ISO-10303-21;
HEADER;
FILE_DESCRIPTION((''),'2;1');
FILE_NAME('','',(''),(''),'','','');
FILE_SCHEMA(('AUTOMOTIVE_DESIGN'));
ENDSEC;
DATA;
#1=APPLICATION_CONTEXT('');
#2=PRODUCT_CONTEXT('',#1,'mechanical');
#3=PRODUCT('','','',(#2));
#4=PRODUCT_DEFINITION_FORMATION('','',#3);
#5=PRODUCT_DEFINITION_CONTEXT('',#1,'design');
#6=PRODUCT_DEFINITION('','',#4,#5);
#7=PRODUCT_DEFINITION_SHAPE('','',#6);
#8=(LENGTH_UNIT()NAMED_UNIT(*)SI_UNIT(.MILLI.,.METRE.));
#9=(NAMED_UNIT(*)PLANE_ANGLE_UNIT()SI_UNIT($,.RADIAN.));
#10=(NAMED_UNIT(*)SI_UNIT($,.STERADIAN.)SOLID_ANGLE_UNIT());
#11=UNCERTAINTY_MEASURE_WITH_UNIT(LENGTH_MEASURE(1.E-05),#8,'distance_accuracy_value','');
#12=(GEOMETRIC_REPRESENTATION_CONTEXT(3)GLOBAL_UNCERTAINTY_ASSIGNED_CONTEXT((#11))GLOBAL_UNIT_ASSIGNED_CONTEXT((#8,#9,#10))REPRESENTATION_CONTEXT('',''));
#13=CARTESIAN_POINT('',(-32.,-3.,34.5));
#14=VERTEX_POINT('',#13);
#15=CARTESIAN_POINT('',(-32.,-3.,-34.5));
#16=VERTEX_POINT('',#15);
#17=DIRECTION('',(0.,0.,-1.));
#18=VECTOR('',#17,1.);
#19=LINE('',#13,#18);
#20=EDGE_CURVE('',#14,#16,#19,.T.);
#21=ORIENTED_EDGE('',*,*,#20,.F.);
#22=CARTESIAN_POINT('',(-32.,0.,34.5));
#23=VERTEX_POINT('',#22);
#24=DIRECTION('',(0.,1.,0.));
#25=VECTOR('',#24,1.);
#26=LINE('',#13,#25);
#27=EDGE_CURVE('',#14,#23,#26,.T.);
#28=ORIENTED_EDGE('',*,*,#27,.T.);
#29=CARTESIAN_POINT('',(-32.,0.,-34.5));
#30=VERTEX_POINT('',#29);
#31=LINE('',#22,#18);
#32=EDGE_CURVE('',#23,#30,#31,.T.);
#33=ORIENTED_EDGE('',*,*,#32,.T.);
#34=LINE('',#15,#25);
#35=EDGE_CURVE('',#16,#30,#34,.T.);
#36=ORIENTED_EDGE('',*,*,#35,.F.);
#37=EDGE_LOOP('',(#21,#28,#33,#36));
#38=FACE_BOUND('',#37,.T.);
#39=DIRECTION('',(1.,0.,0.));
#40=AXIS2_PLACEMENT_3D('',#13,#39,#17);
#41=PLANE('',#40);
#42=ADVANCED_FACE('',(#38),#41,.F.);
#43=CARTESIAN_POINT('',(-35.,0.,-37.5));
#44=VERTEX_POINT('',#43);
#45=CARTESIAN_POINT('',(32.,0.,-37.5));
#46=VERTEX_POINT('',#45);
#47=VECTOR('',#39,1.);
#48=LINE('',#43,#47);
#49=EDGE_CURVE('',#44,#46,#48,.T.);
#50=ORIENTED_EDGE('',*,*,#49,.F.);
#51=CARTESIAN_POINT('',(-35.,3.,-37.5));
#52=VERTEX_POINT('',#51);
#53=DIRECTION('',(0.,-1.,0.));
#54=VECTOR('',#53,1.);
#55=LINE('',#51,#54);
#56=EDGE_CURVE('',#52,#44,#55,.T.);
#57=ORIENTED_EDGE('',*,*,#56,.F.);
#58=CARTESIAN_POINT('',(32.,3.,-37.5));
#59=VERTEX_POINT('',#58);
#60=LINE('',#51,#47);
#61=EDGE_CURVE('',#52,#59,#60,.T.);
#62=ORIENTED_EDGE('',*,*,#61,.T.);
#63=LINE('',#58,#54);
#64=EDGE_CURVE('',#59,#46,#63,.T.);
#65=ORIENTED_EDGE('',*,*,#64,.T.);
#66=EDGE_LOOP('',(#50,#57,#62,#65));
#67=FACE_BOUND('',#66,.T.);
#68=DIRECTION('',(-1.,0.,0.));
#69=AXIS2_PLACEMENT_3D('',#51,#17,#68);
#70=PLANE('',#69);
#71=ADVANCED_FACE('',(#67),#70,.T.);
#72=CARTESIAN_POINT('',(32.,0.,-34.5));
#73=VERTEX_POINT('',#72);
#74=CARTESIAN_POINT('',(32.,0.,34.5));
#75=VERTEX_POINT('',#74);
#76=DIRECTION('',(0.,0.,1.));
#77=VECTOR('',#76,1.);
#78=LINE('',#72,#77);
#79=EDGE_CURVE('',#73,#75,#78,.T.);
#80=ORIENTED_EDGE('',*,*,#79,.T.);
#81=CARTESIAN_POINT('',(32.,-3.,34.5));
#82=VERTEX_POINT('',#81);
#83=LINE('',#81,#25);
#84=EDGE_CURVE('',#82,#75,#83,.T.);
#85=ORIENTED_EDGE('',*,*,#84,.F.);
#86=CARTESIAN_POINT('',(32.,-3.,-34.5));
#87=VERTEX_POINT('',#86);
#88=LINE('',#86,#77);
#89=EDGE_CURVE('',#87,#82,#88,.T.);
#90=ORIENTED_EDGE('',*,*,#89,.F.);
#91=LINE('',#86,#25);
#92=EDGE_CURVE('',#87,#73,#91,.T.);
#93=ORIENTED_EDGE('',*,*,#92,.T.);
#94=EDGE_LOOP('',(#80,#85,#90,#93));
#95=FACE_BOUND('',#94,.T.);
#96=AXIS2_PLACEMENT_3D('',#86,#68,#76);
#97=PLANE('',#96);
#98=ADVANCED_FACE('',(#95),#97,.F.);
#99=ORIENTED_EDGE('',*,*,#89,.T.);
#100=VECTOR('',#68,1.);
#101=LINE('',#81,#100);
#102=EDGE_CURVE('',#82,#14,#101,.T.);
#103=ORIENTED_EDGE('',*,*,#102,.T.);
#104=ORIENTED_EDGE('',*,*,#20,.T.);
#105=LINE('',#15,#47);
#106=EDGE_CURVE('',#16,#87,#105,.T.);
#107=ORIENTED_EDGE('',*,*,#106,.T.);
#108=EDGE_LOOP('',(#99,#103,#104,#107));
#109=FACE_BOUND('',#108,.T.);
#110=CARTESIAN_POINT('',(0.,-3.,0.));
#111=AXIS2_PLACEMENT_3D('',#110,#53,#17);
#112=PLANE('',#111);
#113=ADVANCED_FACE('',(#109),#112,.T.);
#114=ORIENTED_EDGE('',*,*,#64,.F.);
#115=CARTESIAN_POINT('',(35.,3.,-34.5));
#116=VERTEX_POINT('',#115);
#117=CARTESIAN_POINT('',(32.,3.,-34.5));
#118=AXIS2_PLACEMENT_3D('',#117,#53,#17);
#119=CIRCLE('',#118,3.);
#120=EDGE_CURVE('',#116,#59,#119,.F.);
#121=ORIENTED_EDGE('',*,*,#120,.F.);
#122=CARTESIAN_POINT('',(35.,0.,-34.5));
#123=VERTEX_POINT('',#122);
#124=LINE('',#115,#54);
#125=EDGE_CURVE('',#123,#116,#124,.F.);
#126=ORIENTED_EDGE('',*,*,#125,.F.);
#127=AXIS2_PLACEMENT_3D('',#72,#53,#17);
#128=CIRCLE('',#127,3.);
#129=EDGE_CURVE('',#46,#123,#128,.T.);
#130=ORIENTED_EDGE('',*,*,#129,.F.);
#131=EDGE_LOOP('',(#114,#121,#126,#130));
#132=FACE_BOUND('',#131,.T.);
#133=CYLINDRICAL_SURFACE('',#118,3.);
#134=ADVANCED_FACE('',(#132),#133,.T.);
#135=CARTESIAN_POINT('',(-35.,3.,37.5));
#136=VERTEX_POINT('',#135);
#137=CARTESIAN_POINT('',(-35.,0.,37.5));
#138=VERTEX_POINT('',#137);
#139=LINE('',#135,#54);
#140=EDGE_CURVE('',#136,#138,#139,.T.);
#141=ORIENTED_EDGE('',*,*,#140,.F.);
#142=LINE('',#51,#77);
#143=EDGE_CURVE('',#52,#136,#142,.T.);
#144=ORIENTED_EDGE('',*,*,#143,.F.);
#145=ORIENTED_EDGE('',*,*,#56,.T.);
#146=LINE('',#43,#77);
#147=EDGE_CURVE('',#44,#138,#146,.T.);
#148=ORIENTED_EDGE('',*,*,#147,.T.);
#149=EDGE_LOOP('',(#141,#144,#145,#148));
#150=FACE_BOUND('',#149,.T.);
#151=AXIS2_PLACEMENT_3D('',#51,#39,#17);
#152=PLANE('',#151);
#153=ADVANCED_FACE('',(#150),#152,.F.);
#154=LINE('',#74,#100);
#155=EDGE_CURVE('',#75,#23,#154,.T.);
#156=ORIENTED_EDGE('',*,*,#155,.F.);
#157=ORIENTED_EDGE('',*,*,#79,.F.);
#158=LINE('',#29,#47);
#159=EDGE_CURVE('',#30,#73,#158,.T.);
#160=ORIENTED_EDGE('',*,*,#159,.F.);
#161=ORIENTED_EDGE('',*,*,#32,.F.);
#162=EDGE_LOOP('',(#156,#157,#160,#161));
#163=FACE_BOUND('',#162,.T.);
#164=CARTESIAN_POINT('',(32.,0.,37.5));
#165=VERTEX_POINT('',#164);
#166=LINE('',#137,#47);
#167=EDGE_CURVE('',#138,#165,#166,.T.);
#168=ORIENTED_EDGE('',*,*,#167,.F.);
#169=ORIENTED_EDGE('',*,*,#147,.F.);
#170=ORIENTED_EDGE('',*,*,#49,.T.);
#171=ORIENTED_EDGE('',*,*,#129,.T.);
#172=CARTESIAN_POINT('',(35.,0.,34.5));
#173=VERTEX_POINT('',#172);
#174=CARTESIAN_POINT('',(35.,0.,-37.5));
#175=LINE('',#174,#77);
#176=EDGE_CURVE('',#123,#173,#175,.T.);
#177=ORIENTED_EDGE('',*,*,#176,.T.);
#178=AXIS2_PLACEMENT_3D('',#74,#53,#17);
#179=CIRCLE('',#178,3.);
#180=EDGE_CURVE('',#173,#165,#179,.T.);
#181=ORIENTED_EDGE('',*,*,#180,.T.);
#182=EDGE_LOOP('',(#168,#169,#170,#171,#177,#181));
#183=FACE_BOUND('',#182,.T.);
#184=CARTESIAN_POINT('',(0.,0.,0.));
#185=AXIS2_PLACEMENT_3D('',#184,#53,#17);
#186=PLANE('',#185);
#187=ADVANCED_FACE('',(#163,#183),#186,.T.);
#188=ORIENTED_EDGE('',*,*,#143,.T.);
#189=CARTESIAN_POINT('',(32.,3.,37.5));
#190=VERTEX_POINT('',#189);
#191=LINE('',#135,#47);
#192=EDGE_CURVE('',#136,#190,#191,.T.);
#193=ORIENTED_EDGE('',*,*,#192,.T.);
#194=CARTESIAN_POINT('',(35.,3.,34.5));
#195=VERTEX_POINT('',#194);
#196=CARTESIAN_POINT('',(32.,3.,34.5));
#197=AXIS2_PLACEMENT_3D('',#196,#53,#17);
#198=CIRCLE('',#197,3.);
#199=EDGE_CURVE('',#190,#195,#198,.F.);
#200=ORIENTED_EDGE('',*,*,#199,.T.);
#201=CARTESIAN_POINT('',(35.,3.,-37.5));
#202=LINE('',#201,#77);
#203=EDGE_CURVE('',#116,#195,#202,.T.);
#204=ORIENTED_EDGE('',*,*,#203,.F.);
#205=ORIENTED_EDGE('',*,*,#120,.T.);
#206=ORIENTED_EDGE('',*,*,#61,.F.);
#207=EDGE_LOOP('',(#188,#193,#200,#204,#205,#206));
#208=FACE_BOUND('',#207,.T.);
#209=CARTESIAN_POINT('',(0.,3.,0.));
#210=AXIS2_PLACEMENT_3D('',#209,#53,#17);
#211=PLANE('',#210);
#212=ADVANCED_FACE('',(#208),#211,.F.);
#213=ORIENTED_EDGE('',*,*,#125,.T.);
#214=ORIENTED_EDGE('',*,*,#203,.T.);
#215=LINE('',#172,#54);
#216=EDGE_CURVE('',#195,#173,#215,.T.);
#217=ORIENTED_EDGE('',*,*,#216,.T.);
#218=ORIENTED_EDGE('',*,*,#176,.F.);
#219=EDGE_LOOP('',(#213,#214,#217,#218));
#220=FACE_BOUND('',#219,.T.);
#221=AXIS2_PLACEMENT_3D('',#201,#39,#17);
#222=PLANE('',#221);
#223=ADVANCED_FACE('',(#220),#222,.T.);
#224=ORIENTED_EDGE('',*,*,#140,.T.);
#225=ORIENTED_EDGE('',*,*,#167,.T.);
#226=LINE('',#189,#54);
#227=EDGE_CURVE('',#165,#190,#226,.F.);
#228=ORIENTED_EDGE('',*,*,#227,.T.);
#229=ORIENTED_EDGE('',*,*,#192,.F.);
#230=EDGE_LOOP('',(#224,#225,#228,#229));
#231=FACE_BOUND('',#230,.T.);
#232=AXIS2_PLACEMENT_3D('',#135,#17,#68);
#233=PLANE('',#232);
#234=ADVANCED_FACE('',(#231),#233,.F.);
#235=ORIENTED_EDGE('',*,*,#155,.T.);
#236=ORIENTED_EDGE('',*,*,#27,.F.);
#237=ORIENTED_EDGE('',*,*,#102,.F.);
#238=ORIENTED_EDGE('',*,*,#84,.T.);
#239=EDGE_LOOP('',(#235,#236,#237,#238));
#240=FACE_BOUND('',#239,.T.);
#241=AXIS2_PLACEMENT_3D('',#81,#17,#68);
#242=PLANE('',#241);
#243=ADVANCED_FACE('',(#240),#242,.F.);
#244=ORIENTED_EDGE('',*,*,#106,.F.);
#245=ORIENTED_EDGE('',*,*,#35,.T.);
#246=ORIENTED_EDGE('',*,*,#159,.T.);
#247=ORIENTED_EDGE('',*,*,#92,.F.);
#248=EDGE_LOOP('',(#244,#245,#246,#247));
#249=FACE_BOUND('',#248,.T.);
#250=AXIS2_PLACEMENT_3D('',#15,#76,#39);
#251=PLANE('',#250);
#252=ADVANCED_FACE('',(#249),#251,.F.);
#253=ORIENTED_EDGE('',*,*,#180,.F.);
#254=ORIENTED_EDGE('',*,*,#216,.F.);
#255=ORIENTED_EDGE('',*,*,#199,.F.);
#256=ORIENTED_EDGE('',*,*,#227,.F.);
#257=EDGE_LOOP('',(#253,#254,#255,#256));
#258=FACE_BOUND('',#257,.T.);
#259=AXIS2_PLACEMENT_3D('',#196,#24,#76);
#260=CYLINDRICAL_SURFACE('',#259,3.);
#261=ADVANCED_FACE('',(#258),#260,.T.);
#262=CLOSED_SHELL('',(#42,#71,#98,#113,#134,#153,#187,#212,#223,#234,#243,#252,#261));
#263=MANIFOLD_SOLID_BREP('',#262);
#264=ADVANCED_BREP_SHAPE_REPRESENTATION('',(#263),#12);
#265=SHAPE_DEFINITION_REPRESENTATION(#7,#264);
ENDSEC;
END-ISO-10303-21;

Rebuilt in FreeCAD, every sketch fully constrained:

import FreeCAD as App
import Part
import Sketcher
Q = App.Units.Quantity


def edges_at(feature, points):
    """Names of the edges that pass closest to the given points."""
    edges = feature.Shape.Edges
    near = lambda p: min(range(len(edges)), key=lambda i: edges[i].distToShape(Part.Vertex(*p))[0])
    return sorted({f"Edge{near(p) + 1}" for p in points})

doc = App.newDocument("Part")
body = doc.addObject("PartDesign::Body", "Body")

sketch1 = body.newObject("Sketcher::SketchObject", "Sketch")
sketch1.AttachmentSupport = (doc.getObject("XZ_Plane"), [""])
sketch1.MapMode = "FlatFace"
sketch1.addGeometry([
    Part.LineSegment(App.Vector(-35, -38, 0), App.Vector(-35, 38, 0)),
    Part.LineSegment(App.Vector(-35, 38, 0), App.Vector(35, 38, 0)),
    Part.LineSegment(App.Vector(35, 38, 0), App.Vector(35, -38, 0)),
    Part.LineSegment(App.Vector(35, -38, 0), App.Vector(-35, -38, 0)),
], False)
sketch1.addConstraint([
    Sketcher.Constraint("Coincident", 0, 2, 1, 1),
    Sketcher.Constraint("Coincident", 1, 2, 2, 1),
    Sketcher.Constraint("Coincident", 2, 2, 3, 1),
    Sketcher.Constraint("Coincident", 3, 2, 0, 1),
    Sketcher.Constraint("Vertical", 0),
    Sketcher.Constraint("Horizontal", 1),
    Sketcher.Constraint("Vertical", 2),
    Sketcher.Constraint("Horizontal", 3),
    Sketcher.Constraint("Symmetric", 0, 2, 2, 2, -1, 1),
    Sketcher.Constraint("DistanceX", 1, 1, 1, 2, Q("70 mm")),
    Sketcher.Constraint("DistanceY", 0, 1, 0, 2, Q("75 mm")),
])
pad1 = body.newObject("PartDesign::Pad", "Pad")
pad1.Profile = sketch1
pad1.Length = 3
pad1.Reversed = True

sketch2 = body.newObject("Sketcher::SketchObject", "Sketch001")
sketch2.AttachmentSupport = (doc.getObject("XZ_Plane"), [""])
sketch2.MapMode = "FlatFace"
sketch2.addGeometry([
    Part.LineSegment(App.Vector(-32, 34, 0), App.Vector(-32, -34, 0)),
    Part.LineSegment(App.Vector(-32, -34, 0), App.Vector(32, -34, 0)),
    Part.LineSegment(App.Vector(32, -34, 0), App.Vector(32, 34, 0)),
    Part.LineSegment(App.Vector(32, 34, 0), App.Vector(-32, 34, 0)),
], False)
sketch2.addConstraint([
    Sketcher.Constraint("Coincident", 0, 2, 1, 1),
    Sketcher.Constraint("Coincident", 1, 2, 2, 1),
    Sketcher.Constraint("Coincident", 2, 2, 3, 1),
    Sketcher.Constraint("Coincident", 3, 2, 0, 1),
    Sketcher.Constraint("Vertical", 0),
    Sketcher.Constraint("Horizontal", 1),
    Sketcher.Constraint("Vertical", 2),
    Sketcher.Constraint("Horizontal", 3),
    Sketcher.Constraint("Symmetric", 0, 2, 2, 2, -1, 1),
    Sketcher.Constraint("DistanceX", 1, 1, 1, 2, Q("64 mm")),
    Sketcher.Constraint("DistanceY", 0, 2, 0, 1, Q("69 mm")),
])
pad2 = body.newObject("PartDesign::Pad", "Pad001")
pad2.Profile = sketch2
pad2.Length = 3
doc.recompute()

fillet = body.newObject("PartDesign::Fillet", "Fillet")
fillet.Base = (pad2, edges_at(pad2, [(35, 1.5, 37.5), (35, 1.5, -37.5)]))
fillet.Radius = 3

doc.recompute()
